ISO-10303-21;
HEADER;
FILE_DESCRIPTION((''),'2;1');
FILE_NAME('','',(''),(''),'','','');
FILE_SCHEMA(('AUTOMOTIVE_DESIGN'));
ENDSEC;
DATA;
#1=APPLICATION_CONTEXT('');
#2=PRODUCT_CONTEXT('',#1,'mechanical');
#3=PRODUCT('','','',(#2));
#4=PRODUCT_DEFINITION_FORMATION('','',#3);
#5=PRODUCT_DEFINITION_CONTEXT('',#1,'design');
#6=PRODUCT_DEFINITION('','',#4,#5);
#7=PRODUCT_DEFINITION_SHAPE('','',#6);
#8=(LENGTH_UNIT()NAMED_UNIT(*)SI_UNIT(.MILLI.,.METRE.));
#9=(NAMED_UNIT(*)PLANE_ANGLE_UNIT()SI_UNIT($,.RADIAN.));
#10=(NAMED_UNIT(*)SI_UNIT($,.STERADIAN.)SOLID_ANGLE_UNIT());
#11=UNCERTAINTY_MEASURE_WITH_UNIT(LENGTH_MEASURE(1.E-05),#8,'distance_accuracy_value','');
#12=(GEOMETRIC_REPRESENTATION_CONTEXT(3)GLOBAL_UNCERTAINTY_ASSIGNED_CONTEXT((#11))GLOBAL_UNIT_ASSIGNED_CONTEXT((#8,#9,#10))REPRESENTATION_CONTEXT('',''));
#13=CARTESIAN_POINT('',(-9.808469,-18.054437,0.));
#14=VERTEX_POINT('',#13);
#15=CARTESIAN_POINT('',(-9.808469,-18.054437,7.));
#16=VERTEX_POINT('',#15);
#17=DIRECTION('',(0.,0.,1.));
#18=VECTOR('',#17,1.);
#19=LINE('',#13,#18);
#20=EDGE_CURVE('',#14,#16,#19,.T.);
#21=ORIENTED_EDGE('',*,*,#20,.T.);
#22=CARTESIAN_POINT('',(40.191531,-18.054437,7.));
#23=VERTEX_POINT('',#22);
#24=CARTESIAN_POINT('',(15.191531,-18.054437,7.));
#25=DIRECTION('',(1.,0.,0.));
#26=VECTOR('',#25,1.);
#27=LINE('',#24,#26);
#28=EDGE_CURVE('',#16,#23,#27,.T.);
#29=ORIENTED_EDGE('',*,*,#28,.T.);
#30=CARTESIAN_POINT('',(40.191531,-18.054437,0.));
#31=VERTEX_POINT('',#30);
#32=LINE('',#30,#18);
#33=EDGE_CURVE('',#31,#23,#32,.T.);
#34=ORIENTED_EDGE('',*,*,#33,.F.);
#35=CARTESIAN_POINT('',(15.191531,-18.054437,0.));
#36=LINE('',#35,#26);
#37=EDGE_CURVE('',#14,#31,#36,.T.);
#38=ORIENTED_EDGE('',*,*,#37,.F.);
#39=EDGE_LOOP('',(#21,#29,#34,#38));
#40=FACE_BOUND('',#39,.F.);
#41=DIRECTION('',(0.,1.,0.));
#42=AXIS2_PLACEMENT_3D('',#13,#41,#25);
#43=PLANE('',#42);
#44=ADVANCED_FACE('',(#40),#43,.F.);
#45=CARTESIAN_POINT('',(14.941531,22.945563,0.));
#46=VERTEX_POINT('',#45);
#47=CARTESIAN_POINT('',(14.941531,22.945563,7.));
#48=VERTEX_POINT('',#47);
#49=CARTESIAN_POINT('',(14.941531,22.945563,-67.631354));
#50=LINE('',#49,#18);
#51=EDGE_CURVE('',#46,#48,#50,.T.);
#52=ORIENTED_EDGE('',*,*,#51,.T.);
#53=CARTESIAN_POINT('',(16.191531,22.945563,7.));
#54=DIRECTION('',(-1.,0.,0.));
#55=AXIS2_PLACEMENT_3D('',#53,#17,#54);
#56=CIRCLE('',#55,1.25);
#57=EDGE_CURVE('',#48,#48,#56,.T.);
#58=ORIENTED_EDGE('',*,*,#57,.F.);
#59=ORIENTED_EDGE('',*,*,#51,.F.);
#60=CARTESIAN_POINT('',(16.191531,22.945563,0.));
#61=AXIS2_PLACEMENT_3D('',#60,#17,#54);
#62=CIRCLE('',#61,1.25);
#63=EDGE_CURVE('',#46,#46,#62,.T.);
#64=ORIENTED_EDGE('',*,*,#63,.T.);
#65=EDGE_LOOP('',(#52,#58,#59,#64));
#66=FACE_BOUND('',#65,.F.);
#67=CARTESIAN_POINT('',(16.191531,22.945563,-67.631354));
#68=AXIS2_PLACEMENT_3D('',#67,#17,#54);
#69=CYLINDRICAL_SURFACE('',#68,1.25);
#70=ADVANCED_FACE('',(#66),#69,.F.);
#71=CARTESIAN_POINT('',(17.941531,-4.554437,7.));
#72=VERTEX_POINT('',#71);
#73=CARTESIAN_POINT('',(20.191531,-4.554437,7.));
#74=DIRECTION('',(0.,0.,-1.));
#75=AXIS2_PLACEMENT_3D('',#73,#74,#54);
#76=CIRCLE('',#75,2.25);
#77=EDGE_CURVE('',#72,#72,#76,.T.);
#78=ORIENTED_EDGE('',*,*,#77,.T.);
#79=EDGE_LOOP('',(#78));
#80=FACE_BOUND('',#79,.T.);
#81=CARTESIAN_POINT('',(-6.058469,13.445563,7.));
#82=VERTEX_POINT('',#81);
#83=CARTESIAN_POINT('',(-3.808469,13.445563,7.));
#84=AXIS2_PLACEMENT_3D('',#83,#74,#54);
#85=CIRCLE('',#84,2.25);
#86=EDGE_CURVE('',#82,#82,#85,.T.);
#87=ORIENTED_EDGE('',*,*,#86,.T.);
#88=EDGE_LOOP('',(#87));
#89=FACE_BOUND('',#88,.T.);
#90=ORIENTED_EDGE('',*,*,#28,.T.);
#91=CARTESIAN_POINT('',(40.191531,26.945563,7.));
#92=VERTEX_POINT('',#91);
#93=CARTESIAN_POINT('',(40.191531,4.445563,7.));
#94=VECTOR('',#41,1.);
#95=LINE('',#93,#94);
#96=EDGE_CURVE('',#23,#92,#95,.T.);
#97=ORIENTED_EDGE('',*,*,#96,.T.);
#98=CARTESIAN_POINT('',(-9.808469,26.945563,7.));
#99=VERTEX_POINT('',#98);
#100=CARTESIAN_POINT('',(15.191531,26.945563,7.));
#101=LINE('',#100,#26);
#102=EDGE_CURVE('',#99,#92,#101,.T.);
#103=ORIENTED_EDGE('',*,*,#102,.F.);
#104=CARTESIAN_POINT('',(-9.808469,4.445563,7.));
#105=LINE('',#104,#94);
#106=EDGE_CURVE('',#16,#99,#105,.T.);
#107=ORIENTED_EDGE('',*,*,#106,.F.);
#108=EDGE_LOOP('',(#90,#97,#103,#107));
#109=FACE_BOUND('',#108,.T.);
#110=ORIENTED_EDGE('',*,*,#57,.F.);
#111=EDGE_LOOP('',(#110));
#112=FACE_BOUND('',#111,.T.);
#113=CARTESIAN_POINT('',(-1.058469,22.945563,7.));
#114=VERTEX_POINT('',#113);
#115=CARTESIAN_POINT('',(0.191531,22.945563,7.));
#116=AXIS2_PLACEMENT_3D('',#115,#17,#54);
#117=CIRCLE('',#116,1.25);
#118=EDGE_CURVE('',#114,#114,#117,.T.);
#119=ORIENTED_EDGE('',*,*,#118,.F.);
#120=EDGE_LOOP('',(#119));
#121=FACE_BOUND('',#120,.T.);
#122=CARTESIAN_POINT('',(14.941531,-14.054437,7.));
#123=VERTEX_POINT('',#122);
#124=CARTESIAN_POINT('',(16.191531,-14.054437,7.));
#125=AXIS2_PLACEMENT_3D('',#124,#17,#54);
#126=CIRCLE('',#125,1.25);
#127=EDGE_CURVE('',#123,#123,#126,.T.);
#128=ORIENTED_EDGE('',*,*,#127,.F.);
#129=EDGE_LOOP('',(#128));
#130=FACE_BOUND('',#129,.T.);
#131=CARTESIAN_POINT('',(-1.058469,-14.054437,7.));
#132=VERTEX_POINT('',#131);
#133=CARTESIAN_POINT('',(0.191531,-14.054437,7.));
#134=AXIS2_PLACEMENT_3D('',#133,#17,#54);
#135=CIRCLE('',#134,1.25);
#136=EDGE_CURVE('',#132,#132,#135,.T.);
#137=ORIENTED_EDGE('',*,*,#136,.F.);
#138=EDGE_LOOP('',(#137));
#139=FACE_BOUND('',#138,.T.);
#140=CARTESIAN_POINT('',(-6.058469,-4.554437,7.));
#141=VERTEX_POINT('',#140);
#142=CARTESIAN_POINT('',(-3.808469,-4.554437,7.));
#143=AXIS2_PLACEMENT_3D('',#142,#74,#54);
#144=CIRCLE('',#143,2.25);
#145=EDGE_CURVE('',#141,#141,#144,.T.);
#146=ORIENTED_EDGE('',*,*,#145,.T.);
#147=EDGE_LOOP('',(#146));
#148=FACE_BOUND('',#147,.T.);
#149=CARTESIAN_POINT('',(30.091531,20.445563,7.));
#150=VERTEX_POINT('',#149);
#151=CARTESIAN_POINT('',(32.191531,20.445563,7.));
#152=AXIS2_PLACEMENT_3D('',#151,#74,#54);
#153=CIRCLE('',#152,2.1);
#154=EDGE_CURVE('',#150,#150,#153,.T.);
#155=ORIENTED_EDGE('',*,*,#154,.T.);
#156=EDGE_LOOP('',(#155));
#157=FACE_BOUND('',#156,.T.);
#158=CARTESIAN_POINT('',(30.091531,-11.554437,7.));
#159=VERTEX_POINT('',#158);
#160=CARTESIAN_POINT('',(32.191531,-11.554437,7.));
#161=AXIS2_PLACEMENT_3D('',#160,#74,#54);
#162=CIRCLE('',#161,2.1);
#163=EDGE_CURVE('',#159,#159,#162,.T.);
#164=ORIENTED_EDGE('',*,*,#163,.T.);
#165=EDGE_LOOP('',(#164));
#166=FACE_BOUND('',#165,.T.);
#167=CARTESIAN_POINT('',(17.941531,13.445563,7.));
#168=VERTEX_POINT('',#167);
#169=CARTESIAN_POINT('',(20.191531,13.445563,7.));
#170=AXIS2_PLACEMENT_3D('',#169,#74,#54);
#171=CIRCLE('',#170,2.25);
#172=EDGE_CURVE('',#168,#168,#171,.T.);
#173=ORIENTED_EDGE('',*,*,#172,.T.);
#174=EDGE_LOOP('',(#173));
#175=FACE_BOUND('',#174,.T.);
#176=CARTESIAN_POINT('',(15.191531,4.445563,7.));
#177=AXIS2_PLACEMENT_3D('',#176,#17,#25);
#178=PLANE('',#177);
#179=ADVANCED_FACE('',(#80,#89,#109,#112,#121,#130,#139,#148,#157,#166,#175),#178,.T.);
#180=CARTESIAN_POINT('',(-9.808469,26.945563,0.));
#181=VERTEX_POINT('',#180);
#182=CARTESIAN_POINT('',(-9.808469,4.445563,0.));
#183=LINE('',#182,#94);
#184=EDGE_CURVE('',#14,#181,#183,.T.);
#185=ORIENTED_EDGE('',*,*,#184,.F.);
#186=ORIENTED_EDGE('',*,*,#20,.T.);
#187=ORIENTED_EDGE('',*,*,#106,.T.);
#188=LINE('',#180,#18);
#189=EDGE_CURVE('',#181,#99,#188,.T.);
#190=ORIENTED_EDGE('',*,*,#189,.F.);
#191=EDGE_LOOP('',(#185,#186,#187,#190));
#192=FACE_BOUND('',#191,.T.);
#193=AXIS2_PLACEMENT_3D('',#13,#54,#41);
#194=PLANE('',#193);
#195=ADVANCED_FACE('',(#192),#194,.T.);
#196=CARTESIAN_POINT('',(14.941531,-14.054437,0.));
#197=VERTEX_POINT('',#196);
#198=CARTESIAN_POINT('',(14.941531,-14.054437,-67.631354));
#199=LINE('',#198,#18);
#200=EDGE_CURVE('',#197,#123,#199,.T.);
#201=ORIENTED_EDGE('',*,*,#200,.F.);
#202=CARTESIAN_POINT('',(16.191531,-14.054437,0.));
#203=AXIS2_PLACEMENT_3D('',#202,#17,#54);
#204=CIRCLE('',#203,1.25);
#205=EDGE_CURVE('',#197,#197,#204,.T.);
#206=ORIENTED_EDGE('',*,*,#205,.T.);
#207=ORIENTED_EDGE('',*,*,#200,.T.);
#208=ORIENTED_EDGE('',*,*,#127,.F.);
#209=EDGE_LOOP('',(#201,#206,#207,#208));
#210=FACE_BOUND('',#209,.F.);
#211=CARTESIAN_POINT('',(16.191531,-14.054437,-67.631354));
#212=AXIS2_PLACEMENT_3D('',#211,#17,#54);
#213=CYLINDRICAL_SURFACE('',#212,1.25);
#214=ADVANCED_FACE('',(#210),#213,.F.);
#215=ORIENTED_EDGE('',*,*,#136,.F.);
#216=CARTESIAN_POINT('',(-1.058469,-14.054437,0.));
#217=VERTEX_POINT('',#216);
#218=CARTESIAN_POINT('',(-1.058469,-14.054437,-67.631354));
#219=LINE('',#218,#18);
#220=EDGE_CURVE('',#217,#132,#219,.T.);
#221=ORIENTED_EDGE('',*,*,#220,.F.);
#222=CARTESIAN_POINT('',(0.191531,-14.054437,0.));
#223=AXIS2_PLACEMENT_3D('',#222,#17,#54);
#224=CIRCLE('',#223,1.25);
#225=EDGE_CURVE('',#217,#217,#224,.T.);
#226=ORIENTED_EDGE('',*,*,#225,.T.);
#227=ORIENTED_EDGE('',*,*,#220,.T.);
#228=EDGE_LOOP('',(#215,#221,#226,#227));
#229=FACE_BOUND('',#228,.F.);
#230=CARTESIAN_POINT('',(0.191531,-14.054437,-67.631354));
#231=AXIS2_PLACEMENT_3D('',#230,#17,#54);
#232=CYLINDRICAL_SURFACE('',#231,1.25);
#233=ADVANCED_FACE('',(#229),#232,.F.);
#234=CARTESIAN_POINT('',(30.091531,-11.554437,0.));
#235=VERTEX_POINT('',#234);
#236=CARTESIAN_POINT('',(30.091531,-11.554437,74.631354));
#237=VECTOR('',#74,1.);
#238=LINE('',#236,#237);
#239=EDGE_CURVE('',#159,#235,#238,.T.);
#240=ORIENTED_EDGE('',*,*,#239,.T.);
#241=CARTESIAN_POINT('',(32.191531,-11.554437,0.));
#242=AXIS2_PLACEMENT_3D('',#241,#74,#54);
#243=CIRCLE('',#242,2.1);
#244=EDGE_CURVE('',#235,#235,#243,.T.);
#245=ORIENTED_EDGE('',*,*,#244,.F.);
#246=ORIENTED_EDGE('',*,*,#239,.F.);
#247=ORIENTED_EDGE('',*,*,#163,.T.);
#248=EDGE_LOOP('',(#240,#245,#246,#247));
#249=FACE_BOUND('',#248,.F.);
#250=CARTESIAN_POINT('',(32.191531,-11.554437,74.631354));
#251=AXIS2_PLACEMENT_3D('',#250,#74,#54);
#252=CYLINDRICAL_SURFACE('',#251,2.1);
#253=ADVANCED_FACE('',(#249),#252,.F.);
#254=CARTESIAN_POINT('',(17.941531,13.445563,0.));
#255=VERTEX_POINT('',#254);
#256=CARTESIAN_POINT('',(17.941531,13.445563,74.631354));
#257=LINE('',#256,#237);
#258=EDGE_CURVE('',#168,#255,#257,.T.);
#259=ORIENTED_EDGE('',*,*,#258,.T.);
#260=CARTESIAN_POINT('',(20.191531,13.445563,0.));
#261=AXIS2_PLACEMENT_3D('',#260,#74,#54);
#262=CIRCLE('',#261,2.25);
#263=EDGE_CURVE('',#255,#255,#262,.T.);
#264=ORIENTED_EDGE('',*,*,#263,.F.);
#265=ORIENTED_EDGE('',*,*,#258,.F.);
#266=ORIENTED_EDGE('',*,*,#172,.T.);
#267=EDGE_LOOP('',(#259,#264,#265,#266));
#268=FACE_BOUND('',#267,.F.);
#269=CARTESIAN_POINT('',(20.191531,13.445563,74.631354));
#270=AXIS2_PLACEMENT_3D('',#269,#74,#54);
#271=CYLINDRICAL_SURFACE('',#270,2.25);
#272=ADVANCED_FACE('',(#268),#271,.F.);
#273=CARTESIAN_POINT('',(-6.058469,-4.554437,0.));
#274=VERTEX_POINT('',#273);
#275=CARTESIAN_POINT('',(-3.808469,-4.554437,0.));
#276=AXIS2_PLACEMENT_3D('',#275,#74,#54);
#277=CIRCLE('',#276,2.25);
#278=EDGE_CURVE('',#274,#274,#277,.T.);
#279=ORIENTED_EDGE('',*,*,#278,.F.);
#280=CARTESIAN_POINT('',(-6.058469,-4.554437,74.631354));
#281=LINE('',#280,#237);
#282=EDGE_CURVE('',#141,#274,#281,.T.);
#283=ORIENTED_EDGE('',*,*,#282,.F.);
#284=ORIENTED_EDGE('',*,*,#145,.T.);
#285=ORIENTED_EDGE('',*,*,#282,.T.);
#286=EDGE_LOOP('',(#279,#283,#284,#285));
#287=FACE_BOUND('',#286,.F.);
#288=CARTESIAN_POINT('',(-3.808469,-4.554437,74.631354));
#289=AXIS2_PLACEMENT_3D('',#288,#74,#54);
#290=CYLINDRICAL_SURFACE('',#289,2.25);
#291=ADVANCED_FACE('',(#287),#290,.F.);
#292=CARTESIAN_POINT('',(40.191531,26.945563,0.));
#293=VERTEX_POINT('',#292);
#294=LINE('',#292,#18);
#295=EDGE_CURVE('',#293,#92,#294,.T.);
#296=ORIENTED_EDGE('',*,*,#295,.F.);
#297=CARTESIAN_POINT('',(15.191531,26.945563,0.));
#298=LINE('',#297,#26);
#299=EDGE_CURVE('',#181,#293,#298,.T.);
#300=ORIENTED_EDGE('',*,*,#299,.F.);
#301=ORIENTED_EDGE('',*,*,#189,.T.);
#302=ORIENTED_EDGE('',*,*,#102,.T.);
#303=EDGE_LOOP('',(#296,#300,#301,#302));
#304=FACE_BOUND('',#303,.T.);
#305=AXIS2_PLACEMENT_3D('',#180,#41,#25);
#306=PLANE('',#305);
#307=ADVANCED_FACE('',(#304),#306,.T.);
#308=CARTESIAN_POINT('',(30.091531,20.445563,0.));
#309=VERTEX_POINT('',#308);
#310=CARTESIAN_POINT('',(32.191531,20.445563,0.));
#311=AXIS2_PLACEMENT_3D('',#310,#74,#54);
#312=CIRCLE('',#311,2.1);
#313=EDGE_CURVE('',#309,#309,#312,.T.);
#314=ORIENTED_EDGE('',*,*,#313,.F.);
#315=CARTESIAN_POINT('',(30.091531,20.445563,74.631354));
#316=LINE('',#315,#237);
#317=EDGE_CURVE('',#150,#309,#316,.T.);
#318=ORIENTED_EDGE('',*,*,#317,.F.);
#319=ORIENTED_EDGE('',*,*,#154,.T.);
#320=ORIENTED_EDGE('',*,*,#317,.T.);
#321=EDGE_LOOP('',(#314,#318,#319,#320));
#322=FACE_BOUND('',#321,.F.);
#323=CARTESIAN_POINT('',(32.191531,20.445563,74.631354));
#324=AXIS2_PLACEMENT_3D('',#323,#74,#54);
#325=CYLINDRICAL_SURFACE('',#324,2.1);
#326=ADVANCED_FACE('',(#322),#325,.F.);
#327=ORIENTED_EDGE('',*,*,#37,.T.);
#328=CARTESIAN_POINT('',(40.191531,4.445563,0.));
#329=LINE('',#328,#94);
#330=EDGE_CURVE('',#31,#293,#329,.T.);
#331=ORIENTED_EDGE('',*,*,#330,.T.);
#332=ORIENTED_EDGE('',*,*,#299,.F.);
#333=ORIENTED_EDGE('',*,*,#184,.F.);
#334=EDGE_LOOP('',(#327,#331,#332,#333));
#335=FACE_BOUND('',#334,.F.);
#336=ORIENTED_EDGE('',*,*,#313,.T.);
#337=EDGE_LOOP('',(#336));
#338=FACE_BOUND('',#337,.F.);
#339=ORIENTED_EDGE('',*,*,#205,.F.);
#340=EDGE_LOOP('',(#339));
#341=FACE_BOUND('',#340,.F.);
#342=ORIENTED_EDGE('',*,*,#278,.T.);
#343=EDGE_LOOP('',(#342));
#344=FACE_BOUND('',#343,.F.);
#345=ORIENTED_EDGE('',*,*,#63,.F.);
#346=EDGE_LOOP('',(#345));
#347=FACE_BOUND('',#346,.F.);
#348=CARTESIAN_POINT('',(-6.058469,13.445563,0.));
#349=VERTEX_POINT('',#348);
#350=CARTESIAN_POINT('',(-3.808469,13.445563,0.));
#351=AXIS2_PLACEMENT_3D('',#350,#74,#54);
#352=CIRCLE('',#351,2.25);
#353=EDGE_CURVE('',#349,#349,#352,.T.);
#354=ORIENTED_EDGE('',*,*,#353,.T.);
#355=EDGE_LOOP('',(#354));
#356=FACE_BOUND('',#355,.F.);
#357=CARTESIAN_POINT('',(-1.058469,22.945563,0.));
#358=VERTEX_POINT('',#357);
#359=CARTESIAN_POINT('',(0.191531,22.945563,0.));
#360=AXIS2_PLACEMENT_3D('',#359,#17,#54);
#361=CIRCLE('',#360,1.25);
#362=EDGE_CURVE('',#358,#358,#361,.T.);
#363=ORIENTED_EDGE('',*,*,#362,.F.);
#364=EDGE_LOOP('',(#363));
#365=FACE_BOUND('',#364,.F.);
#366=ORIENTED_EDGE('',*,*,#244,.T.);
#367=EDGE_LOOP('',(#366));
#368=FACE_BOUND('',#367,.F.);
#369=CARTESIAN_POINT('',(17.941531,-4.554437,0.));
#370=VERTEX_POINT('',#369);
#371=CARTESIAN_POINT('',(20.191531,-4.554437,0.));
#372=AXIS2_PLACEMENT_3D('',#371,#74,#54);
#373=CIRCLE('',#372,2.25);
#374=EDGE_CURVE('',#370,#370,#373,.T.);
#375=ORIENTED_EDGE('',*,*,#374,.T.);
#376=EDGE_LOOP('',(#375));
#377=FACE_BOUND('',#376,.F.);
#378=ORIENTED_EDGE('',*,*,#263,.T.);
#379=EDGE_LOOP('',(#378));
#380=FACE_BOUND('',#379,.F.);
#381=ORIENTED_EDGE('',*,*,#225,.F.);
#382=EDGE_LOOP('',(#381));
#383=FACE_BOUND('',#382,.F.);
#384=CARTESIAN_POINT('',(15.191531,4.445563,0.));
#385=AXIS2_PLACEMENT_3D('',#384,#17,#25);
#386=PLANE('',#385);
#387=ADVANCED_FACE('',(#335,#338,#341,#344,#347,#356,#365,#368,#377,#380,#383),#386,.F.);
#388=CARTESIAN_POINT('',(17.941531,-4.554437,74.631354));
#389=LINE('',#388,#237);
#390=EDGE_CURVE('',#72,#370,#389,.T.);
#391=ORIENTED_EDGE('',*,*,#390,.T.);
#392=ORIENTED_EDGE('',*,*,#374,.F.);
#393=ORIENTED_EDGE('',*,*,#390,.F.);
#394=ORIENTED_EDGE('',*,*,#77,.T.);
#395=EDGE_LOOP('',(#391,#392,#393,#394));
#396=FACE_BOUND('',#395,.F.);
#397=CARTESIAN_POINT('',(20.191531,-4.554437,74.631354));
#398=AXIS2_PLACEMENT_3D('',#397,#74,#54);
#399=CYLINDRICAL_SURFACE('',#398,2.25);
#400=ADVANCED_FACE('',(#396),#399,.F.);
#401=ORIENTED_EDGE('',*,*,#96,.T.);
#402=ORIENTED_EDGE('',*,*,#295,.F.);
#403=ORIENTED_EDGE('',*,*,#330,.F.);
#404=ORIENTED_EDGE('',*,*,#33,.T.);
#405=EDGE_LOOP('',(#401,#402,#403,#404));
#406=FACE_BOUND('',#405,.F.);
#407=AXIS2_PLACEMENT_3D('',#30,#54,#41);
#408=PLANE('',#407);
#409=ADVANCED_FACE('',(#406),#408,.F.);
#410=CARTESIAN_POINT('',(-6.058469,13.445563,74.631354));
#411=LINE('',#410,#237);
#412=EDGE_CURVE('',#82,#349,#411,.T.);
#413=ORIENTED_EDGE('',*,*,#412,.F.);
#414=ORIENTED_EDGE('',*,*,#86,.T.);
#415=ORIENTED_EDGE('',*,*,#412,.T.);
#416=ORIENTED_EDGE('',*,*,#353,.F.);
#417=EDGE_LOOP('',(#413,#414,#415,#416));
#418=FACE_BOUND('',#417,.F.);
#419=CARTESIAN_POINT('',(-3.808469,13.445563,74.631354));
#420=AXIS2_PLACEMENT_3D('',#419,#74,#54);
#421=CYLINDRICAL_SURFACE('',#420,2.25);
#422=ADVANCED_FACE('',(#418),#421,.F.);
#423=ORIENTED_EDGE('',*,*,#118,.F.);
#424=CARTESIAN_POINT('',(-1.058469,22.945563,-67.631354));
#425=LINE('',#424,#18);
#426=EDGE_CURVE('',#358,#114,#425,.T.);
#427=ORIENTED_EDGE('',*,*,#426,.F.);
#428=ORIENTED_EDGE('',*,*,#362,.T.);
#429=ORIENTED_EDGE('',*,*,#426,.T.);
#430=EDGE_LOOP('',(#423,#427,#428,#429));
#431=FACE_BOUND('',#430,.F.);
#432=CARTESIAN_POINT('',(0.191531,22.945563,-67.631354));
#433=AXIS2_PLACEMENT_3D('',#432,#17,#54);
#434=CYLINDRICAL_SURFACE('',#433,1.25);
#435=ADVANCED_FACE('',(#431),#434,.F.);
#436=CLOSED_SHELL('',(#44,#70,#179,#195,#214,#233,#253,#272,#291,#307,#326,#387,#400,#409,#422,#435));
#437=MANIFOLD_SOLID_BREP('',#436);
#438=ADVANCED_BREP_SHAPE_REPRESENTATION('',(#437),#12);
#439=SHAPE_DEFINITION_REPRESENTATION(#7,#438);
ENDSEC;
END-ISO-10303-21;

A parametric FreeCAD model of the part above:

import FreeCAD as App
import Part
import Sketcher
from FreeCAD import Vector


def add_polygon(sketch, points):
    """Adds a closed chain of lines whose ends are joined by coincident constraints."""
    first, n = sketch.GeometryCount, len(points)
    for a, b in zip(points, points[1:] + points[:1]):
        sketch.addGeometry(Part.LineSegment(App.Vector(*a, 0), App.Vector(*b, 0)), False)
    for i in range(n):
        sketch.addConstraint(Sketcher.Constraint("Coincident", first + i, 2, first + (i + 1) % n, 1))

doc = App.newDocument("Part")
body = doc.addObject("PartDesign::Body", "Body")

# Sketch on XY plane
sketch1 = body.newObject("Sketcher::SketchObject", "Sketch")
sketch1.AttachmentSupport = (doc.getObject("XY_Plane"), [""])
sketch1.MapMode = "FlatFace"
add_polygon(sketch1, [(-10, 27), (-10, -18), (40, -18), (40, 27)])  # lines 0-3
sketch1.addConstraint(Sketcher.Constraint("Vertical", 0))
sketch1.addConstraint(Sketcher.Constraint("Horizontal", 1))
sketch1.addConstraint(Sketcher.Constraint("Vertical", 2))
sketch1.addConstraint(Sketcher.Constraint("Horizontal", 3))
sketch1.addConstraint(Sketcher.Constraint("DistanceX", 1, 1, 1, 2, 50.0))
sketch1.addConstraint(Sketcher.Constraint("DistanceY", 0, 2, 0, 1, 45.0))
sketch1.addConstraint(Sketcher.Constraint("DistanceX", 0, 2, -1, 1, 9.808469))
sketch1.addConstraint(Sketcher.Constraint("DistanceY", 0, 2, -1, 1, 18.054437))
pad1 = body.newObject("PartDesign::Pad", "Pad")
pad1.Profile = sketch1
pad1.Length = 7

# Sketch on XY plane
sketch2 = body.newObject("Sketcher::SketchObject", "Sketch001")
sketch2.AttachmentSupport = (doc.getObject("XY_Plane"), [""])
sketch2.MapMode = "FlatFace"
sketch2.AttachmentOffset = App.Placement(Vector(0, 0, 7), App.Rotation())
sketch2.addGeometry(Part.Circle(Vector(32.2, 20.4, 0), Vector(0, 0, 1), 2.1), False)
sketch2.addGeometry(Part.Circle(Vector(32.2, -11.6, 0), Vector(0, 0, 1), 2.1), False)
sketch2.addConstraint(Sketcher.Constraint("Equal", 0, 1))
sketch2.addConstraint(Sketcher.Constraint("Vertical", 0, 3, 1, 3))
sketch2.addConstraint(Sketcher.Constraint("Diameter", 0, 4.2))
sketch2.addConstraint(Sketcher.Constraint("DistanceY", 1, 3, 0, 3, 32.0))
sketch2.addConstraint(Sketcher.Constraint("DistanceX", -1, 1, 0, 3, 32.191531))
sketch2.addConstraint(Sketcher.Constraint("DistanceY", -1, 1, 0, 3, 20.445563))
doc.recompute()
hole = body.newObject("PartDesign::Hole", "Hole")
hole.Profile = sketch2
hole.ThreadType = "None"
hole.Diameter = 4.2
hole.DepthType = "ThroughAll"

# Sketch on XY plane
sketch3 = body.newObject("Sketcher::SketchObject", "Sketch002")
sketch3.AttachmentSupport = (doc.getObject("XY_Plane"), [""])
sketch3.MapMode = "FlatFace"
sketch3.AttachmentOffset = App.Placement(Vector(0, 0, 7), App.Rotation())
sketch3.addGeometry(Part.Circle(Vector(-3.8, 13.4, 0), Vector(0, 0, 1), 2.2), False)
sketch3.addGeometry(Part.Circle(Vector(20.2, 13.4, 0), Vector(0, 0, 1), 2.2), False)
sketch3.addGeometry(Part.Circle(Vector(20.2, -4.6, 0), Vector(0, 0, 1), 2.2), False)
sketch3.addGeometry(Part.Circle(Vector(-3.8, -4.6, 0), Vector(0, 0, 1), 2.2), False)
sketch3.addConstraint(Sketcher.Constraint("Equal", 0, 1))
sketch3.addConstraint(Sketcher.Constraint("Equal", 1, 2))
sketch3.addConstraint(Sketcher.Constraint("Equal", 2, 3))
sketch3.addConstraint(Sketcher.Constraint("Horizontal", 0, 3, 1, 3))
sketch3.addConstraint(Sketcher.Constraint("Horizontal", 2, 3, 3, 3))
sketch3.addConstraint(Sketcher.Constraint("Vertical", 1, 3, 2, 3))
sketch3.addConstraint(Sketcher.Constraint("Vertical", 0, 3, 3, 3))
sketch3.addConstraint(Sketcher.Constraint("Diameter", 0, 4.5))
sketch3.addConstraint(Sketcher.Constraint("DistanceX", 0, 3, 1, 3, 24.0))
sketch3.addConstraint(Sketcher.Constraint("DistanceY", 2, 3, 1, 3, 18.0))
sketch3.addConstraint(Sketcher.Constraint("DistanceX", 0, 3, -1, 1, 3.808469))
sketch3.addConstraint(Sketcher.Constraint("DistanceY", -1, 1, 0, 3, 13.445563))
doc.recompute()
hole2 = body.newObject("PartDesign::Hole", "Hole001")
hole2.Profile = sketch3
hole2.ThreadType = "None"
hole2.Diameter = 4.5
hole2.DepthType = "ThroughAll"

# Sketch on XY plane
sketch4 = body.newObject("Sketcher::SketchObject", "Sketch003")
sketch4.AttachmentSupport = (doc.getObject("XY_Plane"), [""])
sketch4.MapMode = "FlatFace"
sketch4.addGeometry(Part.Circle(Vector(0.2, -14.1, 0), Vector(0, 0, 1), 1.2), False)
sketch4.addGeometry(Part.Circle(Vector(16.2, -14.1, 0), Vector(0, 0, 1), 1.2), False)
sketch4.addGeometry(Part.Circle(Vector(16.2, 22.9, 0), Vector(0, 0, 1), 1.2), False)
sketch4.addGeometry(Part.Circle(Vector(0.2, 22.9, 0), Vector(0, 0, 1), 1.2), False)
sketch4.addConstraint(Sketcher.Constraint("Equal", 0, 1))
sketch4.addConstraint(Sketcher.Constraint("Equal", 1, 2))
sketch4.addConstraint(Sketcher.Constraint("Equal", 2, 3))
sketch4.addConstraint(Sketcher.Constraint("Horizontal", 0, 3, 1, 3))
sketch4.addConstraint(Sketcher.Constraint("Horizontal", 2, 3, 3, 3))
sketch4.addConstraint(Sketcher.Constraint("Vertical", 1, 3, 2, 3))
sketch4.addConstraint(Sketcher.Constraint("Vertical", 0, 3, 3, 3))
sketch4.addConstraint(Sketcher.Constraint("Diameter", 0, 2.5))
sketch4.addConstraint(Sketcher.Constraint("DistanceX", 0, 3, 1, 3, 16.0))
sketch4.addConstraint(Sketcher.Constraint("DistanceY", 1, 3, 2, 3, 37.0))
sketch4.addConstraint(Sketcher.Constraint("DistanceX", -1, 1, 0, 3, 0.191531))
sketch4.addConstraint(Sketcher.Constraint("DistanceY", 0, 3, -1, 1, 14.054437))
doc.recompute()
hole3 = body.newObject("PartDesign::Hole", "Hole002")
hole3.Profile = sketch4
hole3.ThreadType = "None"
hole3.Diameter = 2.5
hole3.DepthType = "ThroughAll"
hole3.Reversed = True

doc.recompute()
